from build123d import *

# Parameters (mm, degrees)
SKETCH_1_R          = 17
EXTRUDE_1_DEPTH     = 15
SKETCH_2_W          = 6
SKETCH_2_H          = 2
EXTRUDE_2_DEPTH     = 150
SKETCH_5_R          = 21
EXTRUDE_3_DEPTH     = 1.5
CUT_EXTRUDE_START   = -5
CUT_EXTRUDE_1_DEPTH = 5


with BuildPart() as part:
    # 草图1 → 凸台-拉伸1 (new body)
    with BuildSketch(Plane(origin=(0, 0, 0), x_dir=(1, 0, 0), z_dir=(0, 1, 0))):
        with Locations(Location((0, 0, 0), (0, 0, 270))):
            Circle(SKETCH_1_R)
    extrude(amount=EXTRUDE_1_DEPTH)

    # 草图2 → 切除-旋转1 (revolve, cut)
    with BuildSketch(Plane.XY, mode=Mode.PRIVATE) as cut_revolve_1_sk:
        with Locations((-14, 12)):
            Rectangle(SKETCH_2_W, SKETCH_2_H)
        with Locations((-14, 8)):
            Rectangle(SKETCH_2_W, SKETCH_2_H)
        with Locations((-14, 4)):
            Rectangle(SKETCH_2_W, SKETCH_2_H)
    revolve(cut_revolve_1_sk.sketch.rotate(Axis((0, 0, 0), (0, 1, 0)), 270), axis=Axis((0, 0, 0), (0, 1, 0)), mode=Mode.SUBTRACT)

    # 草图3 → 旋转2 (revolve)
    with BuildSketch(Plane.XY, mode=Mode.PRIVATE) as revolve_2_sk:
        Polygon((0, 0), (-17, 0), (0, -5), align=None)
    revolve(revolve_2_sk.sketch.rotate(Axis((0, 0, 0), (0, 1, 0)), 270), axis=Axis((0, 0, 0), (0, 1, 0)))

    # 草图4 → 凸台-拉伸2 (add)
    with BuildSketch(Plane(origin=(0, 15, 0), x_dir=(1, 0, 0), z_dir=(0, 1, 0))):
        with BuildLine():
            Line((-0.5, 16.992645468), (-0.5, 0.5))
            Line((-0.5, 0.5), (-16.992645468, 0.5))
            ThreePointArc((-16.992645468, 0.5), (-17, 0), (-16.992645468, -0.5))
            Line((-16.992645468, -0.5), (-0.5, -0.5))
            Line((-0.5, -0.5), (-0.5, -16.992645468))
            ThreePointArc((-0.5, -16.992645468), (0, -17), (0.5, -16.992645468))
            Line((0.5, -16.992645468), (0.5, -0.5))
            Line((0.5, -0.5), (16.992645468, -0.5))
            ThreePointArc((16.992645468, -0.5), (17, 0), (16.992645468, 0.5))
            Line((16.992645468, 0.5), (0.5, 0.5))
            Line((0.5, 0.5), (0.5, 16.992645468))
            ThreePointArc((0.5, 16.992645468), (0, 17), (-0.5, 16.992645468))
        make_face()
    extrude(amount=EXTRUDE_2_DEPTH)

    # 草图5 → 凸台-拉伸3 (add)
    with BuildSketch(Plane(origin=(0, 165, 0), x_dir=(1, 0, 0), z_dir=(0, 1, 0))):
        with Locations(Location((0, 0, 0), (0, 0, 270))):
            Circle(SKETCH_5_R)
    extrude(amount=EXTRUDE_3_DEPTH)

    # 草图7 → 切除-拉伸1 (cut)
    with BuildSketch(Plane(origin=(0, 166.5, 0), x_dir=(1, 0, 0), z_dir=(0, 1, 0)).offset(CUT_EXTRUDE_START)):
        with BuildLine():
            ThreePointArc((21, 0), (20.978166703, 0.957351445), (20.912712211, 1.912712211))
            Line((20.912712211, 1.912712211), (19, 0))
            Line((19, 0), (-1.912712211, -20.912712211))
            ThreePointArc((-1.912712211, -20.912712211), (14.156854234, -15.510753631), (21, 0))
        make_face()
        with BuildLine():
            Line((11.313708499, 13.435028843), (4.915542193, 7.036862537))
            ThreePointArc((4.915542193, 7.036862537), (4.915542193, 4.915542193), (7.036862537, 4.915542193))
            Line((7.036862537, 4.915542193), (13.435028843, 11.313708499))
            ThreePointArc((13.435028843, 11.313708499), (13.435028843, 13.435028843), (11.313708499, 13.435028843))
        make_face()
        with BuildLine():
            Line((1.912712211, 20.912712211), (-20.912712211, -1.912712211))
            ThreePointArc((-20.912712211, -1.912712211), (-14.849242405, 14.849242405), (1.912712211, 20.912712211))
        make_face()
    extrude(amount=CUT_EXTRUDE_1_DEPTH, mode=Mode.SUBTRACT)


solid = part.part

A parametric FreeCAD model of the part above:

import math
import FreeCAD as App
import Part
import Sketcher

V = App.Vector
Q = App.Units.Quantity

doc = App.newDocument("Part")
body = doc.addObject("PartDesign::Body", "Body")

# Sketch on XZ plane
sketch1 = body.newObject("Sketcher::SketchObject", "Sketch")
sketch1.AttachmentSupport = (doc.getObject("XZ_Plane"), [""])
sketch1.MapMode = "FlatFace"
sketch1.addGeometry(Part.Circle(V(0, 0, 0), V(0, 0, 1), 17), False)
sketch1.addConstraint([
    Sketcher.Constraint("Coincident", 0, 3, -1, 1),
    Sketcher.Constraint("Diameter", 0, Q("34 mm")),
])
pad1 = body.newObject("PartDesign::Pad", "Pad")
pad1.Profile = sketch1
pad1.Length = 15
pad1.Reversed = True

# Sketch on XY plane
sketch2 = body.newObject("Sketcher::SketchObject", "Sketch001")
sketch2.AttachmentSupport = (doc.getObject("XY_Plane"), [""])
sketch2.MapMode = "FlatFace"
sketch2.addGeometry([
    Part.LineSegment(V(-17, 13, 0), V(-17, 11, 0)),  # 0
    Part.LineSegment(V(-17, 11, 0), V(-11, 11, 0)),  # 1
    Part.LineSegment(V(-11, 11, 0), V(-11, 13, 0)),  # 2
    Part.LineSegment(V(-11, 13, 0), V(-17, 13, 0)),  # 3
    Part.LineSegment(V(-17, 9, 0), V(-17, 7, 0)),  # 4
    Part.LineSegment(V(-17, 7, 0), V(-11, 7, 0)),  # 5
    Part.LineSegment(V(-11, 7, 0), V(-11, 9, 0)),  # 6
    Part.LineSegment(V(-11, 9, 0), V(-17, 9, 0)),  # 7
    Part.LineSegment(V(-17, 5, 0), V(-17, 3, 0)),  # 8
    Part.LineSegment(V(-17, 3, 0), V(-11, 3, 0)),  # 9
    Part.LineSegment(V(-11, 3, 0), V(-11, 5, 0)),  # 10
    Part.LineSegment(V(-11, 5, 0), V(-17, 5, 0)),  # 11
], False)
sketch2.addConstraint([
    Sketcher.Constraint("Coincident", 0, 2, 1, 1),
    Sketcher.Constraint("Coincident", 1, 2, 2, 1),
    Sketcher.Constraint("Coincident", 2, 2, 3, 1),
    Sketcher.Constraint("Coincident", 3, 2, 0, 1),
    Sketcher.Constraint("Coincident", 4, 2, 5, 1),
    Sketcher.Constraint("Coincident", 5, 2, 6, 1),
    Sketcher.Constraint("Coincident", 6, 2, 7, 1),
    Sketcher.Constraint("Coincident", 7, 2, 4, 1),
    Sketcher.Constraint("Coincident", 8, 2, 9, 1),
    Sketcher.Constraint("Coincident", 9, 2, 10, 1),
    Sketcher.Constraint("Coincident", 10, 2, 11, 1),
    Sketcher.Constraint("Coincident", 11, 2, 8, 1),
    Sketcher.Constraint("Vertical", 0),
    Sketcher.Constraint("Horizontal", 1),
    Sketcher.Constraint("Vertical", 2),
    Sketcher.Constraint("Horizontal", 3),
    Sketcher.Constraint("Vertical", 4),
    Sketcher.Constraint("Horizontal", 5),
    Sketcher.Constraint("Vertical", 6),
    Sketcher.Constraint("Horizontal", 7),
    Sketcher.Constraint("Vertical", 8),
    Sketcher.Constraint("Horizontal", 9),
    Sketcher.Constraint("Vertical", 10),
    Sketcher.Constraint("Horizontal", 11),
    Sketcher.Constraint("Vertical", 3, 2, 4, 2),
    Sketcher.Constraint("Vertical", 2, 2, 5, 2),
    Sketcher.Constraint("Vertical", 7, 2, 8, 2),
    Sketcher.Constraint("Vertical", 6, 2, 9, 2),
    Sketcher.Constraint("Equal", 2, 4),
    Sketcher.Constraint("Equal", 6, 8),
    Sketcher.Constraint("DistanceX", 1, 1, 1, 2, Q("6 mm")),
    Sketcher.Constraint("DistanceY", 0, 2, 0, 1, Q("2 mm")),
    Sketcher.Constraint("DistanceX", 0, 2, -1, 1, Q("17 mm")),
    Sketcher.Constraint("DistanceY", -1, 1, 0, 2, Q("11 mm")),
    Sketcher.Constraint("DistanceY", -1, 1, 4, 2, Q("7 mm")),
    Sketcher.Constraint("DistanceY", -1, 1, 8, 2, Q("3 mm")),
])
groove = body.newObject("PartDesign::Groove", "Groove")
groove.Profile = sketch2
groove.ReferenceAxis = (sketch2, ["V_Axis"])
groove.Angle = 360

# Sketch on XY plane
sketch3 = body.newObject("Sketcher::SketchObject", "Sketch002")
sketch3.AttachmentSupport = (doc.getObject("XY_Plane"), [""])
sketch3.MapMode = "FlatFace"
sketch3.addGeometry([
    Part.LineSegment(V(0, 0, 0), V(-17, 0, 0)),
    Part.LineSegment(V(-17, 0, 0), V(0, -5, 0)),
    Part.LineSegment(V(0, -5, 0), V(0, 0, 0)),
], False)
sketch3.addConstraint([
    Sketcher.Constraint("Coincident", 0, 2, 1, 1),
    Sketcher.Constraint("Coincident", 1, 2, 2, 1),
    Sketcher.Constraint("Coincident", 2, 2, 0, 1),
    Sketcher.Constraint("Horizontal", 0),
    Sketcher.Constraint("Vertical", 2),
    Sketcher.Constraint("Coincident", 2, 2, -1, 1),
    Sketcher.Constraint("DistanceX", 0, 2, 0, 1, Q("17 mm")),
    Sketcher.Constraint("DistanceY", 2, 1, 2, 2, Q("5 mm")),
])
revolution = body.newObject("PartDesign::Revolution", "Revolution")
revolution.Profile = sketch3
revolution.ReferenceAxis = (sketch3, ["V_Axis"])
revolution.Angle = 360

# Sketch on XZ plane
sketch4 = body.newObject("Sketcher::SketchObject", "Sketch003")
sketch4.AttachmentSupport = (doc.getObject("XZ_Plane"), [""])
sketch4.MapMode = "FlatFace"
sketch4.AttachmentOffset = App.Placement(V(0, 0, -15), App.Rotation())
sketch4.addGeometry([
    Part.LineSegment(V(-0.5, -17, 0), V(-0.5, -0.5, 0)),  # 0
    Part.LineSegment(V(-0.5, -0.5, 0), V(-17, -0.5, 0)),  # 1
    Part.ArcOfCircle(Part.Circle(V(0, 0, 0), V(0, 0, 1), 17), math.radians(178.31), math.radians(181.69)),  # 2
    Part.LineSegment(V(-17, 0.5, 0), V(-0.5, 0.5, 0)),  # 3
    Part.LineSegment(V(-0.5, 0.5, 0), V(-0.5, 17, 0)),  # 4
    Part.ArcOfCircle(Part.Circle(V(0, 0, 0), V(0, 0, 1), 17), math.radians(88.31), math.radians(91.69)),  # 5
    Part.LineSegment(V(0.5, 17, 0), V(0.5, 0.5, 0)),  # 6
    Part.LineSegment(V(0.5, 0.5, 0), V(17, 0.5, 0)),  # 7
    Part.ArcOfCircle(Part.Circle(V(0, 0, 0), V(0, 0, 1), 17), math.radians(-1.69), math.radians(1.69)),  # 8
    Part.LineSegment(V(17, -0.5, 0), V(0.5, -0.5, 0)),  # 9
    Part.LineSegment(V(0.5, -0.5, 0), V(0.5, -17, 0)),  # 10
    Part.ArcOfCircle(Part.Circle(V(0, 0, 0), V(0, 0, 1), 17), math.radians(-91.69), math.radians(-88.31)),  # 11
], False)
sketch4.addConstraint([
    Sketcher.Constraint("Coincident", 0, 2, 1, 1),
    Sketcher.Constraint("Coincident", 1, 2, 2, 2),
    Sketcher.Constraint("Coincident", 2, 1, 3, 1),
    Sketcher.Constraint("Coincident", 3, 2, 4, 1),
    Sketcher.Constraint("Coincident", 4, 2, 5, 2),
    Sketcher.Constraint("Coincident", 5, 1, 6, 1),
    Sketcher.Constraint("Coincident", 6, 2, 7, 1),
    Sketcher.Constraint("Coincident", 7, 2, 8, 2),
    Sketcher.Constraint("Coincident", 8, 1, 9, 1),
    Sketcher.Constraint("Coincident", 9, 2, 10, 1),
    Sketcher.Constraint("Coincident", 10, 2, 11, 2),
    Sketcher.Constraint("Coincident", 11, 1, 0, 1),
    Sketcher.Constraint("Vertical", 0),
    Sketcher.Constraint("Horizontal", 1),
    Sketcher.Constraint("Horizontal", 3),
    Sketcher.Constraint("Vertical", 4),
    Sketcher.Constraint("Vertical", 6),
    Sketcher.Constraint("Horizontal", 7),
    Sketcher.Constraint("Horizontal", 9),
    Sketcher.Constraint("Vertical", 10),
    Sketcher.Constraint("Coincident", 2, 3, -1, 1),
    Sketcher.Constraint("Coincident", 5, 3, -1, 1),
    Sketcher.Constraint("Coincident", 8, 3, -1, 1),
    Sketcher.Constraint("Coincident", 11, 3, -1, 1),
    Sketcher.Constraint("Equal", 2, 5),
    Sketcher.Constraint("Equal", 5, 8),
    Sketcher.Constraint("Equal", 8, 11),
    Sketcher.Constraint("Symmetric", 0, 2, 6, 2, -1, 1),
    Sketcher.Constraint("Symmetric", 3, 2, 9, 2, -1, 1),
    Sketcher.Constraint("Symmetric", 3, 2, 6, 2, -2),
    Sketcher.Constraint("Equal", 9, 0),
    Sketcher.Constraint("Radius", 2, Q("17 mm")),
    Sketcher.Constraint("DistanceY", 1, 2, 2, 1, Q("1 mm")),
])
pad2 = body.newObject("PartDesign::Pad", "Pad001")
pad2.Profile = sketch4
pad2.Length = 150
pad2.Reversed = True

# Sketch on XZ plane
sketch5 = body.newObject("Sketcher::SketchObject", "Sketch004")
sketch5.AttachmentSupport = (doc.getObject("XZ_Plane"), [""])
sketch5.MapMode = "FlatFace"
sketch5.AttachmentOffset = App.Placement(V(0, 0, -165), App.Rotation())
sketch5.addGeometry(Part.Circle(V(0, 0, 0), V(0, 0, 1), 21), False)
sketch5.addConstraint([
    Sketcher.Constraint("Coincident", 0, 3, -1, 1),
    Sketcher.Constraint("Diameter", 0, Q("42 mm")),
])
pad3 = body.newObject("PartDesign::Pad", "Pad002")
pad3.Profile = sketch5
pad3.Length = 1.5
pad3.Reversed = True

# Sketch on XZ plane
sketch6 = body.newObject("Sketcher::SketchObject", "Sketch005")
sketch6.AttachmentSupport = (doc.getObject("XZ_Plane"), [""])
sketch6.MapMode = "FlatFace"
sketch6.AttachmentOffset = App.Placement(V(0, 0, -161.5), App.Rotation())
sketch6.addGeometry([
    Part.ArcOfCircle(Part.Circle(V(0, 0, 0), V(0, 0, 1), 21), math.radians(-5.23), math.radians(0)),  # 0
    Part.LineSegment(V(20.9, -1.9, 0), V(-1.9, 20.9, 0)),  # 1
    Part.ArcOfCircle(Part.Circle(V(0, 0, 0), V(0, 0, 1), 21), math.radians(0), math.radians(95)),  # 2
    Part.LineSegment(V(11.3, -13.4, 0), V(4.9, -7, 0)),  # 3
    Part.ArcOfCircle(Part.Circle(V(6, -6, 0), V(0, 0, 1), 1.5), math.radians(45), math.radians(225)),  # 4
    Part.LineSegment(V(7, -4.9, 0), V(13.4, -11.3, 0)),  # 5
    Part.ArcOfCircle(Part.Circle(V(12.4, -12.4, 0), V(0, 0, 1), 1.5), math.radians(-135), math.radians(45)),  # 6
    Part.LineSegment(V(-20.9, 1.9, 0), V(1.9, -20.9, 0)),  # 7
    Part.ArcOfCircle(Part.Circle(V(0, 0, 0), V(0, 0, 1), 21), math.radians(175), math.radians(275)),  # 8
], False)
sketch6.addConstraint([
    Sketcher.Constraint("Coincident", 0, 1, 1, 1),
    Sketcher.Constraint("Coincident", 1, 2, 2, 2),
    Sketcher.Constraint("Tangent", 2, 1, 0, 2),
    Sketcher.Constraint("Tangent", 3, 2, 4, 2),
    Sketcher.Constraint("Tangent", 4, 1, 5, 1),
    Sketcher.Constraint("Tangent", 5, 2, 6, 2),
    Sketcher.Constraint("Tangent", 6, 1, 3, 1),
    Sketcher.Constraint("Coincident", 7, 1, 8, 1),
    Sketcher.Constraint("Coincident", 8, 2, 7, 2),
    Sketcher.Constraint("Coincident", 0, 3, -1, 1),
    Sketcher.Constraint("Coincident", 8, 3, -1, 1),
    Sketcher.Constraint("Equal", 0, 2),
    Sketcher.Constraint("Equal", 4, 6),
    Sketcher.Constraint("Equal", 2, 8),
    Sketcher.Constraint("PointOnObject", 2, 1, -1),
    Sketcher.Constraint("Parallel", 1, 3),
    Sketcher.Constraint("Parallel", 5, 7),
    Sketcher.Constraint("Equal", 1, 7),
    Sketcher.Constraint("Radius", 0, Q("21 mm")),
    Sketcher.Constraint("Radius", 4, Q("1.5 mm")),
    Sketcher.Constraint("Angle", 1, Q("135 deg")),
    Sketcher.Constraint("DistanceX", 7, 1, 1, 2, Q("19 mm")),
    Sketcher.Constraint("DistanceX", -1, 1, 6, 3, Q("12.374369 mm")),
    Sketcher.Constraint("DistanceY", 6, 3, -1, 1, Q("12.374369 mm")),
    Sketcher.Constraint("DistanceX", 4, 3, 0, 1, Q("14.93651 mm")),
])
pocket1 = body.newObject("PartDesign::Pocket", "Pocket")
pocket1.Profile = sketch6
pocket1.Length = 5

doc.recompute()
